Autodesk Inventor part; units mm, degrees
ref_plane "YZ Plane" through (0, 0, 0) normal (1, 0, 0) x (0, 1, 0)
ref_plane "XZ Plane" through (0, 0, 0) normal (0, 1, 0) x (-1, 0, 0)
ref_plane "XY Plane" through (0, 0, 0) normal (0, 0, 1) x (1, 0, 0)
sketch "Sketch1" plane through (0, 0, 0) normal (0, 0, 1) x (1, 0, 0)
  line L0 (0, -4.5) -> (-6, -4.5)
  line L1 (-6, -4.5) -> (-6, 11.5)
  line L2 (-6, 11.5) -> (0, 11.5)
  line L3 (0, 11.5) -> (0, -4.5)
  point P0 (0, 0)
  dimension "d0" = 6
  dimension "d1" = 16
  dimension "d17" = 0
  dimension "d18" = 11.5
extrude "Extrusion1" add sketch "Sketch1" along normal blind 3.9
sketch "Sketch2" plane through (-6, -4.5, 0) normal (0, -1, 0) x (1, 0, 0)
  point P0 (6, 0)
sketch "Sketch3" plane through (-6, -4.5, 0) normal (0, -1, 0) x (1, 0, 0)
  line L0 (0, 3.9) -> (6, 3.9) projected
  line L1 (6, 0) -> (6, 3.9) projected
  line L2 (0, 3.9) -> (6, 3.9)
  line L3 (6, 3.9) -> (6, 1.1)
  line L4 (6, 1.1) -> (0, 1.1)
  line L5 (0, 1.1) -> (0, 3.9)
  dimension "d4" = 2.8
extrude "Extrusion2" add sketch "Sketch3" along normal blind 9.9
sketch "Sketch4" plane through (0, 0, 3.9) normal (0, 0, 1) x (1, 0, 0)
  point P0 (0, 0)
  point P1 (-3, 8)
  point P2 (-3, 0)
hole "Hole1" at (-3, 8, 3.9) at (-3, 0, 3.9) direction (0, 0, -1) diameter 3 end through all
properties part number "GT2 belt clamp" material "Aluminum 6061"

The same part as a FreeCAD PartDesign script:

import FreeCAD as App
import Part
import Sketcher

V = App.Vector


def add_polygon(sketch, points):
    """Adds a closed chain of lines whose ends are joined by coincident constraints."""
    first, n = sketch.GeometryCount, len(points)
    for a, b in zip(points, points[1:] + points[:1]):
        sketch.addGeometry(Part.LineSegment(App.Vector(*a, 0), App.Vector(*b, 0)), False)
    for i in range(n):
        sketch.addConstraint(Sketcher.Constraint("Coincident", first + i, 2, first + (i + 1) % n, 1))

doc = App.newDocument("Part")
body = doc.addObject("PartDesign::Body", "Body")

sketch1 = body.newObject("Sketcher::SketchObject", "Sketch")
sketch1.AttachmentSupport = (doc.getObject("XY_Plane"), [""])
sketch1.MapMode = "FlatFace"
add_polygon(sketch1, [(-6, -4), (0, -4), (0, 12), (-6, 12)])
sketch1.addConstraint([
    Sketcher.Constraint("Horizontal", 0),
    Sketcher.Constraint("Vertical", 1),
    Sketcher.Constraint("Horizontal", 2),
    Sketcher.Constraint("Vertical", 3),
    Sketcher.Constraint("PointOnObject", 0, 2, -2),
    Sketcher.Constraint("DistanceX", 0, 1, 0, 2, 6.0),
    Sketcher.Constraint("DistanceY", 1, 1, 1, 2, 16.0),
    Sketcher.Constraint("DistanceY", -1, 1, 1, 2, 11.5),
])
pad1 = body.newObject("PartDesign::Pad", "Pad")
pad1.Profile = sketch1
pad1.Length = 3.9

sketch2 = body.newObject("Sketcher::SketchObject", "Sketch001")
sketch2.AttachmentSupport = (doc.getObject("XZ_Plane"), [""])
sketch2.MapMode = "FlatFace"
sketch2.AttachmentOffset = App.Placement(V(0, 0, 4.5), App.Rotation())
add_polygon(sketch2, [(0, 3.9), (-6, 3.9), (-6, 1.1), (0, 1.1)])
sketch2.addConstraint([
    Sketcher.Constraint("Horizontal", 0),
    Sketcher.Constraint("Vertical", 1),
    Sketcher.Constraint("Horizontal", 2),
    Sketcher.Constraint("Vertical", 3),
    Sketcher.Constraint("PointOnObject", 2, 2, -2),
    Sketcher.Constraint("DistanceY", 1, 2, 1, 1, 2.8),
    Sketcher.Constraint("DistanceX", 0, 2, 0, 1, 6.0),
    Sketcher.Constraint("DistanceY", -1, 1, 0, 2, 3.9),
])
pad2 = body.newObject("PartDesign::Pad", "Pad001")
pad2.Profile = sketch2
pad2.Length = 9.9

sketch3 = body.newObject("Sketcher::SketchObject", "Sketch002")
sketch3.AttachmentSupport = (doc.getObject("XY_Plane"), [""])
sketch3.MapMode = "FlatFace"
sketch3.AttachmentOffset = App.Placement(V(0, 0, 3.9), App.Rotation())
sketch3.addGeometry([
    Part.Circle(V(-3, 8, 0), V(0, 0, 1), 1.5),
    Part.Circle(V(-3, 0, 0), V(0, 0, 1), 1.5),
], False)
sketch3.addConstraint([
    Sketcher.Constraint("Equal", 0, 1),
    Sketcher.Constraint("PointOnObject", 1, 3, -1),
    Sketcher.Constraint("Vertical", 0, 3, 1, 3),
    Sketcher.Constraint("Diameter", 0, 3.0),
    Sketcher.Constraint("DistanceX", 0, 3, -1, 1, 3.0),
    Sketcher.Constraint("DistanceY", -1, 1, 0, 3, 8.0),
])
doc.recompute()
hole = body.newObject("PartDesign::Hole", "Hole")
hole.Profile = sketch3
hole.ThreadType = "None"
hole.Diameter = 3
hole.DepthType = "ThroughAll"

doc.recompute()
